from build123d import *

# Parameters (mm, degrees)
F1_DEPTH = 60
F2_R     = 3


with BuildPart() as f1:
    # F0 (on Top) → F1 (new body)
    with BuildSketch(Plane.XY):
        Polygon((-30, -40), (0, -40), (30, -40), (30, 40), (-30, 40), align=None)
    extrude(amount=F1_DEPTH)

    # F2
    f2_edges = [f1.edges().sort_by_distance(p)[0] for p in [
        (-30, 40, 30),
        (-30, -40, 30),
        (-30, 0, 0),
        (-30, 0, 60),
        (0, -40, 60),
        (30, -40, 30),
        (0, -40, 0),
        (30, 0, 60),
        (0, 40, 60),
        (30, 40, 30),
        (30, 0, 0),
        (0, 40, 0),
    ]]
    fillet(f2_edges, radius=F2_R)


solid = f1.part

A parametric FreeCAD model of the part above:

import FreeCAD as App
import Part
import Sketcher
from FreeCAD import Vector
Q = App.Units.Quantity

doc = App.newDocument("Part")
body = doc.addObject("PartDesign::Body", "Body")

# Sketch on XY plane
sketch1 = doc.addObject("Sketcher::SketchObject", "Sketch")
body.addObject(sketch1)
sketch1.AttachmentSupport = (doc.XY_Plane, [""])
sketch1.MapMode = "FlatFace"
sketch1.addGeometry(Part.LineSegment(Vector(-30, -40, 0), Vector(30, -40, 0)), False)
sketch1.addGeometry(Part.LineSegment(Vector(30, -40, 0), Vector(30, 40, 0)), False)
sketch1.addGeometry(Part.LineSegment(Vector(30, 40, 0), Vector(-30, 40, 0)), False)
sketch1.addGeometry(Part.LineSegment(Vector(-30, 40, 0), Vector(-30, -40, 0)), False)
sketch1.addConstraint(Sketcher.Constraint("Coincident", 0, 2, 1, 1))
sketch1.addConstraint(Sketcher.Constraint("Coincident", 1, 2, 2, 1))
sketch1.addConstraint(Sketcher.Constraint("Coincident", 2, 2, 3, 1))
sketch1.addConstraint(Sketcher.Constraint("Coincident", 3, 2, 0, 1))
sketch1.addConstraint(Sketcher.Constraint("Horizontal", 0))
sketch1.addConstraint(Sketcher.Constraint("Vertical", 1))
sketch1.addConstraint(Sketcher.Constraint("Horizontal", 2))
sketch1.addConstraint(Sketcher.Constraint("Vertical", 3))
sketch1.addConstraint(Sketcher.Constraint("Symmetric", 0, 2, 2, 2, -1, 1))
sketch1.addConstraint(Sketcher.Constraint("DistanceX", 0, 1, 0, 2, Q("60 mm")))
sketch1.addConstraint(Sketcher.Constraint("DistanceY", 1, 1, 1, 2, Q("80 mm")))
pad1 = doc.addObject("PartDesign::Pad", "Pad")
body.addObject(pad1)
pad1.Profile = sketch1
pad1.Length = 60
doc.recompute()

fillet = doc.addObject("PartDesign::Fillet", "Fillet")
body.addObject(fillet)
fillet.Base = (pad1, ["Edge1"])
fillet.UseAllEdges = True
fillet.Radius = 3

doc.recompute()
